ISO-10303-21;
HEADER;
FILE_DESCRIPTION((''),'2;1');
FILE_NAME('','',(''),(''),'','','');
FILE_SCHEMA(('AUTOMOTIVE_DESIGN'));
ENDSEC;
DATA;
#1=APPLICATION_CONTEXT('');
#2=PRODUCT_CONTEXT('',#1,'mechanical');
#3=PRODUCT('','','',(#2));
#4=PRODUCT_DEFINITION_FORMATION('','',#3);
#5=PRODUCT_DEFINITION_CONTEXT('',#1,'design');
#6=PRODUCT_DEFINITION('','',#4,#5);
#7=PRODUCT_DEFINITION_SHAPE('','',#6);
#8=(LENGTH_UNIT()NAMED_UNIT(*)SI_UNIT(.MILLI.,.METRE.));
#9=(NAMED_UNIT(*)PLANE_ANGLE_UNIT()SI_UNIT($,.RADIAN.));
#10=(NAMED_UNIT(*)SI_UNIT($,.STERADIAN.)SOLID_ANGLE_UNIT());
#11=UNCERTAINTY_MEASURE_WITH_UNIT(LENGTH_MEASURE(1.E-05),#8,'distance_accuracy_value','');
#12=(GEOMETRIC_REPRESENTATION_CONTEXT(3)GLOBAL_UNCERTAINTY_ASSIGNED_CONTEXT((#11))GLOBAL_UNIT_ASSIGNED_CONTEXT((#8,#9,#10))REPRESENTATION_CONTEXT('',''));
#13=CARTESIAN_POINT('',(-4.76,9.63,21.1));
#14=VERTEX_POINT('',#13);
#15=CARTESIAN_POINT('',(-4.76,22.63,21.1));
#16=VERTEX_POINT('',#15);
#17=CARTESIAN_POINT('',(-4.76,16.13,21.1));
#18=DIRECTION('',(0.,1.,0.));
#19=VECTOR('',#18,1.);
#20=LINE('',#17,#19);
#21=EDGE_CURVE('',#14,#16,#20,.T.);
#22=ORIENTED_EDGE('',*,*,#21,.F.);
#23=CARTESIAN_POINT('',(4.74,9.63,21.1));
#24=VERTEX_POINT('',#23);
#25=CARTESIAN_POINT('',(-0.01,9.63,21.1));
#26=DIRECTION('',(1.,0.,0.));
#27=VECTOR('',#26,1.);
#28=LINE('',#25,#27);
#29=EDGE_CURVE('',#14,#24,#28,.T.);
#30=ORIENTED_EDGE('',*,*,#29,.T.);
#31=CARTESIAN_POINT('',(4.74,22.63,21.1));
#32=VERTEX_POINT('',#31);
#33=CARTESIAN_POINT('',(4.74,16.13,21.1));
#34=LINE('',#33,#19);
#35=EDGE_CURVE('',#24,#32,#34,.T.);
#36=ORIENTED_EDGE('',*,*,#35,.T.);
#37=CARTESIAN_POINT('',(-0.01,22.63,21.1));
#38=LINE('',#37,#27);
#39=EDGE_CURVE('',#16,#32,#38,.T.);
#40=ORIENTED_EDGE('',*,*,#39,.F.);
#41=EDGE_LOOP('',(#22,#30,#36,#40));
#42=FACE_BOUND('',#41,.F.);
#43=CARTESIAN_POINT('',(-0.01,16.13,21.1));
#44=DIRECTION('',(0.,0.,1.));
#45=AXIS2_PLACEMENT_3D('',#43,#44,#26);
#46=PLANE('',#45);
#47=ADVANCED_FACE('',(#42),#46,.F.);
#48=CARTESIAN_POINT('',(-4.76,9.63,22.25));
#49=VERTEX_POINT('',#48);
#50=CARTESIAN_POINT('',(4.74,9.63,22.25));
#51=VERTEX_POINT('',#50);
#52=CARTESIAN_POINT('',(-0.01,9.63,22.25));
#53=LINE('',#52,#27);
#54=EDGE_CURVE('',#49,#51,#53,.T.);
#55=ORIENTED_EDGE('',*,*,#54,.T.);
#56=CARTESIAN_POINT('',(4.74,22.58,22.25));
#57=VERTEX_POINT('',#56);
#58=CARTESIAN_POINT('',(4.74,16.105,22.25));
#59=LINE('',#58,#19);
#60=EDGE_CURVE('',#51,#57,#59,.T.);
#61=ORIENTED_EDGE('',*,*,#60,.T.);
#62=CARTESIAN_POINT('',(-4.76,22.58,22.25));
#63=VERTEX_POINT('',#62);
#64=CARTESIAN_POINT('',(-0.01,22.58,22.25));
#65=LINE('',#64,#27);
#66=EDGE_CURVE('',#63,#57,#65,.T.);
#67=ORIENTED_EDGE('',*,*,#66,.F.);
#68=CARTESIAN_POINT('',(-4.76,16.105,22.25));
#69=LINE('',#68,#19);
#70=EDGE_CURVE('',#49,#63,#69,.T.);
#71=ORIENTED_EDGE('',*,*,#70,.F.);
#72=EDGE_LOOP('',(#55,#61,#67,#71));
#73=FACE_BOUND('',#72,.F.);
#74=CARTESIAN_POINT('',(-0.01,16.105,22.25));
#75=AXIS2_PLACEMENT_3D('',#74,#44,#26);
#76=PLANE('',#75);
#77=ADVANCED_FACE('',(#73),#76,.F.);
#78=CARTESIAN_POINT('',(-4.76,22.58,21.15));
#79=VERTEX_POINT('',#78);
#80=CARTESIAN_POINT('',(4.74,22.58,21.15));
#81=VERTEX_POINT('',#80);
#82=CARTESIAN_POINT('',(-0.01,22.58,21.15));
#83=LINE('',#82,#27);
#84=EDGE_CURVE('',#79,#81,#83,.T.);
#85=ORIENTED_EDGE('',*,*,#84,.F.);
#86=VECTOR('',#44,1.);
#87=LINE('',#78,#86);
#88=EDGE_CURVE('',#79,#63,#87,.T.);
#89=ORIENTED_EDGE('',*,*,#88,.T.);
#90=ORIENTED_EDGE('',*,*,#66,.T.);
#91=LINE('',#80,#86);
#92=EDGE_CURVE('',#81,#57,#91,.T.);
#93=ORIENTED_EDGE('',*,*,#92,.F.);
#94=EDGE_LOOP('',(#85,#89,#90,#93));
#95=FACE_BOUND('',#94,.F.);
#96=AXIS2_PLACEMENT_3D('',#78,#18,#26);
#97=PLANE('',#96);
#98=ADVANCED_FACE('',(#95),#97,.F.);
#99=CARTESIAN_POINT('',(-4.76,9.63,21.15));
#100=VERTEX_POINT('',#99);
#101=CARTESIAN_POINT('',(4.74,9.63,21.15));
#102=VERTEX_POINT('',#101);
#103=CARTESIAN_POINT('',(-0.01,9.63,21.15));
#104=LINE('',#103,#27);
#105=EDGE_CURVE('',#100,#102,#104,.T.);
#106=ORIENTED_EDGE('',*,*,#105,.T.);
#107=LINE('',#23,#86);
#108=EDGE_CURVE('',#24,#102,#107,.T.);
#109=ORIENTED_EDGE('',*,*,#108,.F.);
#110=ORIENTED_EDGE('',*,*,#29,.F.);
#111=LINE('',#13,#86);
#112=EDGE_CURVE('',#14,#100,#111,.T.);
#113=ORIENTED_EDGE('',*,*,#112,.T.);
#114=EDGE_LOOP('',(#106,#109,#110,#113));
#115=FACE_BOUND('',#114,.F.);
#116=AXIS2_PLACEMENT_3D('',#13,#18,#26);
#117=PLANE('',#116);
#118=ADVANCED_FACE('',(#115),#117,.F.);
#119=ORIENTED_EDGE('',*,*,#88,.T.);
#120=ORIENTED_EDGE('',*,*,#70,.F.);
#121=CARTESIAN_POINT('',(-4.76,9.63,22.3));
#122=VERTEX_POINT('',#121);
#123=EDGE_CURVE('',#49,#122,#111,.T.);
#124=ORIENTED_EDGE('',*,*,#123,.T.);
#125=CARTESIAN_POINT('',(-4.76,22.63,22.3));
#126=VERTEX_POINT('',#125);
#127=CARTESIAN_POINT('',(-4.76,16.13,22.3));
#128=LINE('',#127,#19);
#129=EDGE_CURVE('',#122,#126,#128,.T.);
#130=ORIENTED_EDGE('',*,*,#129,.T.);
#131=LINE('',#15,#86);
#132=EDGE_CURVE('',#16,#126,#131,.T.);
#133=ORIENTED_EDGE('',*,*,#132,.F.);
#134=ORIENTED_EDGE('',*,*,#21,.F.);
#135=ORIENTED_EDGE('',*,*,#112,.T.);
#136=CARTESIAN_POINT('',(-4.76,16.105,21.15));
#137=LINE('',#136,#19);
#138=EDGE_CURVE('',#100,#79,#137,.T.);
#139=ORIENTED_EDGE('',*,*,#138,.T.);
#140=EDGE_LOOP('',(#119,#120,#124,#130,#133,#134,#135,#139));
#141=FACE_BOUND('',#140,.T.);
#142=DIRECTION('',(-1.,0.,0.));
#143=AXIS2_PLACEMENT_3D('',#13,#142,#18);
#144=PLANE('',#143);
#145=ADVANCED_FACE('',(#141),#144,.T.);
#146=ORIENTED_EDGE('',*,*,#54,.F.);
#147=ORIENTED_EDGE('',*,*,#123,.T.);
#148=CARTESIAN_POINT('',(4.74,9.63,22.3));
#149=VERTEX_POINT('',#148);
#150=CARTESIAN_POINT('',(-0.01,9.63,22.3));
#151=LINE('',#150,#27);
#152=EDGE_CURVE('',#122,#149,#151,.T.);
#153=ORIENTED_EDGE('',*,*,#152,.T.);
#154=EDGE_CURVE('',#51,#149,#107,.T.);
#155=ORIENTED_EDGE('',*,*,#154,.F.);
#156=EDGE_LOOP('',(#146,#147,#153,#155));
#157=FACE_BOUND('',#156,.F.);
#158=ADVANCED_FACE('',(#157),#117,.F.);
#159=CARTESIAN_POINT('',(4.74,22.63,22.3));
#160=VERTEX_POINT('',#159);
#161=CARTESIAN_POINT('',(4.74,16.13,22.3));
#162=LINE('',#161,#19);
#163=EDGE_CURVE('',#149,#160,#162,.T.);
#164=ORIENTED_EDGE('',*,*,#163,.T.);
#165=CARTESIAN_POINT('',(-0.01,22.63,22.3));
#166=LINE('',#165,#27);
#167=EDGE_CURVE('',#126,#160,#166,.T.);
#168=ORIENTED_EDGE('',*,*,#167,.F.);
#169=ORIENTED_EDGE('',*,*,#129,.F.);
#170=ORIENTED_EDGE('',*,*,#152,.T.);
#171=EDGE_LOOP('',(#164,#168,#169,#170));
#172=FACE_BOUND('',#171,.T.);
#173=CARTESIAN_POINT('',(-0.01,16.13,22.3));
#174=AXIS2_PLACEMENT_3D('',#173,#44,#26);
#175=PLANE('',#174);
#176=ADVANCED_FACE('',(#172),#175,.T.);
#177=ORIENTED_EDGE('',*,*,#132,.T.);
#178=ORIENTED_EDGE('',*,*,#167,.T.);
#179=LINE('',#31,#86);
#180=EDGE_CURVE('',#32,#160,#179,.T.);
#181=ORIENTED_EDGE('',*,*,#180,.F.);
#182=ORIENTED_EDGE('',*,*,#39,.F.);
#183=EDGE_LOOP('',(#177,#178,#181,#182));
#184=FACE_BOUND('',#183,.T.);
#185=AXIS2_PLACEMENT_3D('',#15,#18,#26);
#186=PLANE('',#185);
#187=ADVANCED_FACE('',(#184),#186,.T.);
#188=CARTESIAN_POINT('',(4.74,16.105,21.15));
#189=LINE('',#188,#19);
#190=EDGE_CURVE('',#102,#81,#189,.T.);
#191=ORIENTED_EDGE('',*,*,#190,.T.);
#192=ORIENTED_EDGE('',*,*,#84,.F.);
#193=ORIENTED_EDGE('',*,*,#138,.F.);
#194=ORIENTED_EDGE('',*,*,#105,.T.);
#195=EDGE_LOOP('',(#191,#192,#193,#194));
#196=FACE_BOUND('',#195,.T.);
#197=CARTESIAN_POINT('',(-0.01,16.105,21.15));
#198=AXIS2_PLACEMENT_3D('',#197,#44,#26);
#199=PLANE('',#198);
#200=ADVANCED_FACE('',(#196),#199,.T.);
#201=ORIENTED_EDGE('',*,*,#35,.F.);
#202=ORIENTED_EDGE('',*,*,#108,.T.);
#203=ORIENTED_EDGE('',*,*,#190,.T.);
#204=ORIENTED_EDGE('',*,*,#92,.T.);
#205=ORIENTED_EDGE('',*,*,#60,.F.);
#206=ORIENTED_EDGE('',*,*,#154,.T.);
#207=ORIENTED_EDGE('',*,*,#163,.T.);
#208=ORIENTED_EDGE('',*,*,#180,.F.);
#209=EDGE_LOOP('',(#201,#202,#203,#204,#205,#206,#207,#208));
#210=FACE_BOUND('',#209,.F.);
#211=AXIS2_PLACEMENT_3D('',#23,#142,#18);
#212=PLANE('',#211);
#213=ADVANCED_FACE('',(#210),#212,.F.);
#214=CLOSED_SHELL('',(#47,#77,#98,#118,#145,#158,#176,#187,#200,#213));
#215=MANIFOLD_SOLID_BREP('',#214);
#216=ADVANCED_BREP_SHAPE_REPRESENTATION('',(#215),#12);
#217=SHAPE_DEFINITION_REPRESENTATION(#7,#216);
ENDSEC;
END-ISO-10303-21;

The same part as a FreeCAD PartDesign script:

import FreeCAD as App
import Part
import Sketcher
from FreeCAD import Vector
Q = App.Units.Quantity

doc = App.newDocument("Part")
body = doc.addObject("PartDesign::Body", "Body")

# Sketch on XY plane
sketch1 = doc.addObject("Sketcher::SketchObject", "Sketch")
body.addObject(sketch1)
sketch1.AttachmentSupport = (doc.XY_Plane, [""])
sketch1.MapMode = "FlatFace"
sketch1.AttachmentOffset = App.Placement(Vector(0, 0, 0.05), App.Rotation())
sketch1.addGeometry([
    Part.LineSegment(Vector(0, 13, 0), Vector(0, 0, 0)),
    Part.LineSegment(Vector(0, 0, 0), Vector(10, 0, 0)),
    Part.LineSegment(Vector(10, 0, 0), Vector(10, 13, 0)),
    Part.LineSegment(Vector(10, 13, 0), Vector(0, 13, 0)),
], False)
sketch1.addConstraint([
    Sketcher.Constraint("Coincident", 0, 2, 1, 1),
    Sketcher.Constraint("Coincident", 1, 2, 2, 1),
    Sketcher.Constraint("Coincident", 2, 2, 3, 1),
    Sketcher.Constraint("Coincident", 3, 2, 0, 1),
    Sketcher.Constraint("Vertical", 0),
    Sketcher.Constraint("Horizontal", 1),
    Sketcher.Constraint("Vertical", 2),
    Sketcher.Constraint("Horizontal", 3),
    Sketcher.Constraint("Coincident", 0, 2, -1, 1),
    Sketcher.Constraint("DistanceX", 1, 1, 1, 2, Q("9.5 mm")),
    Sketcher.Constraint("DistanceY", 0, 2, 0, 1, Q("12.95 mm")),
])
pad1 = doc.addObject("PartDesign::Pad", "Pad")
body.addObject(pad1)
pad1.Profile = sketch1
pad1.Length = 1.1
body2 = doc.addObject("PartDesign::Body", "Body001")

# Sketch on XY plane
sketch2 = doc.addObject("Sketcher::SketchObject", "Sketch001")
body2.addObject(sketch2)
sketch2.AttachmentSupport = (doc.getObject("XY_Plane001"), [""])
sketch2.MapMode = "FlatFace"
sketch2.addGeometry([
    Part.LineSegment(Vector(0, 13, 0), Vector(0, 0, 0)),
    Part.LineSegment(Vector(0, 0, 0), Vector(10, 0, 0)),
    Part.LineSegment(Vector(10, 0, 0), Vector(10, 13, 0)),
    Part.LineSegment(Vector(10, 13, 0), Vector(0, 13, 0)),
], False)
sketch2.addConstraint([
    Sketcher.Constraint("Coincident", 0, 2, 1, 1),
    Sketcher.Constraint("Coincident", 1, 2, 2, 1),
    Sketcher.Constraint("Coincident", 2, 2, 3, 1),
    Sketcher.Constraint("Coincident", 3, 2, 0, 1),
    Sketcher.Constraint("Vertical", 0),
    Sketcher.Constraint("Horizontal", 1),
    Sketcher.Constraint("Vertical", 2),
    Sketcher.Constraint("Horizontal", 3),
    Sketcher.Constraint("Coincident", 0, 2, -1, 1),
    Sketcher.Constraint("DistanceY", 0, 2, 0, 1, Q("13 mm")),
    Sketcher.Constraint("DistanceX", 1, 1, 1, 2, Q("9.5 mm")),
])
pad2 = doc.addObject("PartDesign::Pad", "Pad001")
body2.addObject(pad2)
pad2.Profile = sketch2
pad2.Length = 1.2
doc.recompute()

boolean = doc.addObject("PartDesign::Boolean", "Boolean")
body2.addObject(boolean)
boolean.Type = "Cut"
boolean.addObjects([body])
body3 = doc.addObject("PartDesign::Body", "Body002")
doc.recompute()

body2.Placement = App.Placement(Vector(-4.76, 9.63, 21.1), App.Rotation(Vector(0, 0, 1), 0))
boolean2 = doc.addObject("PartDesign::Boolean", "Boolean001")
body3.addObject(boolean2)
boolean2.Type = "Fuse"
boolean2.addObjects([body2])

doc.recompute()
